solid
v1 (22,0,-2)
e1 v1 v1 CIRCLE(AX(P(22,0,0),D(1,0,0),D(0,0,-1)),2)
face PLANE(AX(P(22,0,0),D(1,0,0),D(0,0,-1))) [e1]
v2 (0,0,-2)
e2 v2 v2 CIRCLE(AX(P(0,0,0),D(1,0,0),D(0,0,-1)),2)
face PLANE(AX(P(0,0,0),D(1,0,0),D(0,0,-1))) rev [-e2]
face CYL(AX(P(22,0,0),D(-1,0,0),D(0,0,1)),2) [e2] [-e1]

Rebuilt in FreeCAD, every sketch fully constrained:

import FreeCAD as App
import Part
import Sketcher
from FreeCAD import Vector

doc = App.newDocument("Part")
body = doc.addObject("PartDesign::Body", "Body")

# Sketch on YZ plane
sketch1 = body.newObject("Sketcher::SketchObject", "Sketch")
sketch1.AttachmentSupport = (doc.getObject("YZ_Plane"), [""])
sketch1.MapMode = "FlatFace"
sketch1.addGeometry(Part.Circle(Vector(0, 0, 0), Vector(0, 0, 1), 2), False)
sketch1.addConstraint(Sketcher.Constraint("Coincident", 0, 3, -1, 1))
sketch1.addConstraint(Sketcher.Constraint("Diameter", 0, 4.0))
pad1 = body.newObject("PartDesign::Pad", "Pad")
pad1.Profile = sketch1
pad1.Length = 22

doc.recompute()
